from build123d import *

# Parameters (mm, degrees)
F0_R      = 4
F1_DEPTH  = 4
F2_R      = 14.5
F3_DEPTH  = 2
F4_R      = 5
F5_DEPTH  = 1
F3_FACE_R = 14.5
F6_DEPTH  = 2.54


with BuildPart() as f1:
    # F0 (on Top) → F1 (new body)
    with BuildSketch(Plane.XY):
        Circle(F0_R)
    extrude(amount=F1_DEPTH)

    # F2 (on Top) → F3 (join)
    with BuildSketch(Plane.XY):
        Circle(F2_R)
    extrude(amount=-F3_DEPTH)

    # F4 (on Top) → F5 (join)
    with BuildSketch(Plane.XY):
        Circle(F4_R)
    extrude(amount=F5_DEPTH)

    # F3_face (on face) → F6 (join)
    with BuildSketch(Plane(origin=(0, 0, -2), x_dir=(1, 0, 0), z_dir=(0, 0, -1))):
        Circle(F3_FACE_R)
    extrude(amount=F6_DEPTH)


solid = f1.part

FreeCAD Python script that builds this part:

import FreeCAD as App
import Part
import Sketcher

doc = App.newDocument("Part")
body = doc.addObject("PartDesign::Body", "Body")

# Sketch on XY plane
sketch1 = doc.addObject("Sketcher::SketchObject", "Sketch")
body.addObject(sketch1)
sketch1.AttachmentSupport = (doc.XY_Plane, [""])
sketch1.MapMode = "FlatFace"
sketch1.addGeometry(Part.Circle(App.Vector(0, 0, 0), App.Vector(0, 0, 1), 4), False)
sketch1.addConstraint(Sketcher.Constraint("Coincident", 0, 3, -1, 1))
sketch1.addConstraint(Sketcher.Constraint("Diameter", 0, 8.0))
pad1 = doc.addObject("PartDesign::Pad", "Pad")
body.addObject(pad1)
pad1.Profile = sketch1
pad1.Length = 4

# Sketch on XY plane
sketch2 = doc.addObject("Sketcher::SketchObject", "Sketch001")
body.addObject(sketch2)
sketch2.AttachmentSupport = (doc.XY_Plane, [""])
sketch2.MapMode = "FlatFace"
sketch2.addGeometry(Part.Circle(App.Vector(0, 0, 0), App.Vector(0, 0, 1), 14.5), False)
sketch2.addConstraint(Sketcher.Constraint("Coincident", 0, 3, -1, 1))
sketch2.addConstraint(Sketcher.Constraint("Diameter", 0, 29.0))
pad2 = doc.addObject("PartDesign::Pad", "Pad001")
body.addObject(pad2)
pad2.Profile = sketch2
pad2.Length = 2
pad2.Reversed = True

# Sketch on XY plane
sketch3 = doc.addObject("Sketcher::SketchObject", "Sketch002")
body.addObject(sketch3)
sketch3.AttachmentSupport = (doc.XY_Plane, [""])
sketch3.MapMode = "FlatFace"
sketch3.addGeometry(Part.Circle(App.Vector(0, 0, 0), App.Vector(0, 0, 1), 5), False)
sketch3.addConstraint(Sketcher.Constraint("Coincident", 0, 3, -1, 1))
sketch3.addConstraint(Sketcher.Constraint("Diameter", 0, 10.0))
pad3 = doc.addObject("PartDesign::Pad", "Pad002")
body.addObject(pad3)
pad3.Profile = sketch3
pad3.Length = 1

# Sketch on XY plane
sketch4 = doc.addObject("Sketcher::SketchObject", "Sketch003")
body.addObject(sketch4)
sketch4.AttachmentSupport = (doc.XY_Plane, [""])
sketch4.MapMode = "FlatFace"
sketch4.AttachmentOffset = App.Placement(App.Vector(0, 0, -2), App.Rotation())
sketch4.addGeometry(Part.Circle(App.Vector(0, 0, 0), App.Vector(0, 0, 1), 14.5), False)
sketch4.addConstraint(Sketcher.Constraint("Coincident", 0, 3, -1, 1))
sketch4.addConstraint(Sketcher.Constraint("Diameter", 0, 29.0))
pad4 = doc.addObject("PartDesign::Pad", "Pad003")
body.addObject(pad4)
pad4.Profile = sketch4
pad4.Length = 2.54
pad4.Reversed = True

doc.recompute()
